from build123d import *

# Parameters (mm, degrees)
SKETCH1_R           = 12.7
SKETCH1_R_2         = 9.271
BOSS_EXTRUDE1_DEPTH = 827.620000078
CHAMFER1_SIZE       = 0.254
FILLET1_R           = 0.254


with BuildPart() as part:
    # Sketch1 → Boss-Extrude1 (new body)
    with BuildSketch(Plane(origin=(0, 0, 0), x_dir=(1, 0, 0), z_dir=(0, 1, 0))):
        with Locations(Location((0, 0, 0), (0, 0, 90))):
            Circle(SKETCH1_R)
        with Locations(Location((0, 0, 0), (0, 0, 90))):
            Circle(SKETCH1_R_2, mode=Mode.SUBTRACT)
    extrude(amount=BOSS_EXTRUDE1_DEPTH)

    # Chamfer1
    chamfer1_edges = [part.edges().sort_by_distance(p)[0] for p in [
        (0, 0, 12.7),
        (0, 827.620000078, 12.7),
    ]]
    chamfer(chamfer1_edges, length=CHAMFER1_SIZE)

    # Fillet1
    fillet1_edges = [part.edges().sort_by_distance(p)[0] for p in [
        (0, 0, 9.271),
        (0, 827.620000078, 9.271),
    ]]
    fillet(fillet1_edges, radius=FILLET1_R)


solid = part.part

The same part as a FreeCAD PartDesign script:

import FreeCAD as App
import Part
import Sketcher
from FreeCAD import Vector
Q = App.Units.Quantity


def edges_at(feature, points):
    """Names of the edges that pass closest to the given points."""
    edges = feature.Shape.Edges
    near = lambda p: min(range(len(edges)), key=lambda i: edges[i].distToShape(Part.Vertex(*p))[0])
    return sorted({f"Edge{near(p) + 1}" for p in points})

doc = App.newDocument("Part")
body = doc.addObject("PartDesign::Body", "Body")

sketch1 = body.newObject("Sketcher::SketchObject", "Sketch")
sketch1.AttachmentSupport = (doc.getObject("XZ_Plane"), [""])
sketch1.MapMode = "FlatFace"
sketch1.addGeometry(Part.Circle(Vector(0, 0, 0), Vector(0, 0, 1), 13), False)
sketch1.addGeometry(Part.Circle(Vector(0, 0, 0), Vector(0, 0, 1), 9), False)
sketch1.addConstraint(Sketcher.Constraint("Coincident", 0, 3, -1, 1))
sketch1.addConstraint(Sketcher.Constraint("Coincident", 1, 3, -1, 1))
sketch1.addConstraint(Sketcher.Constraint("Diameter", 0, Q("1 in")))
sketch1.addConstraint(Sketcher.Constraint("Diameter", 1, Q("0.73 in")))
pad1 = body.newObject("PartDesign::Pad", "Pad")
pad1.Profile = sketch1
pad1.Length = 827.62
pad1.Reversed = True
doc.recompute()

chamfer = body.newObject("PartDesign::Chamfer", "Chamfer")
chamfer.Base = (pad1, edges_at(pad1, [(0, 0, 12.7), (0, 827.62, 12.7)]))
chamfer.Size = Q("0.01 in")
doc.recompute()

fillet = body.newObject("PartDesign::Fillet", "Fillet")
fillet.Base = (chamfer, edges_at(chamfer, [(0, 0, 9.271), (0, 827.62, 9.271)]))
fillet.Radius = Q("0.01 in")

doc.recompute()
